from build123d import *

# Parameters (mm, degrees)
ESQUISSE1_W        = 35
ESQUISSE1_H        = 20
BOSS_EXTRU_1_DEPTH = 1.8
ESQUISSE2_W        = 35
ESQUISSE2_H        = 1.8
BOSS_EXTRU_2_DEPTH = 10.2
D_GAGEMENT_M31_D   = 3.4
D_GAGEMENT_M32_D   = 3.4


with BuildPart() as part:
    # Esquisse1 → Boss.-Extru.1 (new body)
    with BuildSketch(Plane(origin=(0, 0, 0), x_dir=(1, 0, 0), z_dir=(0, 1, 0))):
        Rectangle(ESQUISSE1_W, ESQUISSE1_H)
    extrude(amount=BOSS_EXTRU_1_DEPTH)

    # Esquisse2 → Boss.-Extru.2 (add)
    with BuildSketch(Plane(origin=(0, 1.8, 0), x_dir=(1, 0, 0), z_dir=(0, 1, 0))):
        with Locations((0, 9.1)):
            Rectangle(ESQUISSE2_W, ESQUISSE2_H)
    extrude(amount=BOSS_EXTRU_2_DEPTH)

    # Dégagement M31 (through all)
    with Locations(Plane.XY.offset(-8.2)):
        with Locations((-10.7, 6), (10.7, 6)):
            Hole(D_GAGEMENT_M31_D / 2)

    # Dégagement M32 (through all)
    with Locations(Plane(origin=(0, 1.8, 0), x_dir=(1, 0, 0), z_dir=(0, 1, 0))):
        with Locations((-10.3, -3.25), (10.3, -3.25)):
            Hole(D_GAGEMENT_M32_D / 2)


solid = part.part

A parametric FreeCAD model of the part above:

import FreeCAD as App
import Part
import Sketcher
from FreeCAD import Vector


def add_polygon(sketch, points):
    """Adds a closed chain of lines whose ends are joined by coincident constraints."""
    first, n = sketch.GeometryCount, len(points)
    for a, b in zip(points, points[1:] + points[:1]):
        sketch.addGeometry(Part.LineSegment(App.Vector(*a, 0), App.Vector(*b, 0)), False)
    for i in range(n):
        sketch.addConstraint(Sketcher.Constraint("Coincident", first + i, 2, first + (i + 1) % n, 1))

doc = App.newDocument("Part")
body = doc.addObject("PartDesign::Body", "Body")

sketch1 = doc.addObject("Sketcher::SketchObject", "Sketch")
body.addObject(sketch1)
sketch1.AttachmentSupport = (doc.XZ_Plane, [""])
sketch1.MapMode = "FlatFace"
add_polygon(sketch1, [(-18, -10), (-18, 10), (18, 10), (18, -10)])
sketch1.addConstraint([
    Sketcher.Constraint("Vertical", 0),
    Sketcher.Constraint("Horizontal", 1),
    Sketcher.Constraint("Vertical", 2),
    Sketcher.Constraint("Horizontal", 3),
    Sketcher.Constraint("Symmetric", 0, 2, 2, 2, -1, 1),
    Sketcher.Constraint("DistanceX", 1, 1, 1, 2, 35.0),
    Sketcher.Constraint("DistanceY", 0, 1, 0, 2, 20.0),
])
pad1 = doc.addObject("PartDesign::Pad", "Pad")
body.addObject(pad1)
pad1.Profile = sketch1
pad1.Length = 1.8
pad1.Reversed = True

sketch2 = doc.addObject("Sketcher::SketchObject", "Sketch001")
body.addObject(sketch2)
sketch2.AttachmentSupport = (doc.XZ_Plane, [""])
sketch2.MapMode = "FlatFace"
sketch2.AttachmentOffset = App.Placement(Vector(0, 0, -1.8), App.Rotation())
add_polygon(sketch2, [(-17.5, -10), (-17.5, -8.2), (17.5, -8.2), (17.5, -10)])
sketch2.addConstraint([
    Sketcher.Constraint("Vertical", 0),
    Sketcher.Constraint("Horizontal", 1),
    Sketcher.Constraint("Vertical", 2),
    Sketcher.Constraint("Horizontal", 3),
    Sketcher.Constraint("DistanceX", 1, 1, 1, 2, 35.0),
    Sketcher.Constraint("DistanceY", 0, 1, 0, 2, 1.8),
    Sketcher.Constraint("DistanceY", 2, 2, -1, 1, 10.0),
    Sketcher.Constraint("DistanceX", 0, 2, -1, 1, 17.5),
])
pad2 = doc.addObject("PartDesign::Pad", "Pad001")
body.addObject(pad2)
pad2.Profile = sketch2
pad2.Length = 10.2
pad2.Reversed = True

sketch3 = doc.addObject("Sketcher::SketchObject", "Sketch002")
body.addObject(sketch3)
sketch3.AttachmentSupport = (doc.XY_Plane, [""])
sketch3.MapMode = "FlatFace"
sketch3.AttachmentOffset = App.Placement(Vector(0, 0, -8.2), App.Rotation())
sketch3.addGeometry([
    Part.Circle(Vector(-10.7, 6, 0), Vector(0, 0, 1), 1.7),
    Part.Circle(Vector(10.7, 6, 0), Vector(0, 0, 1), 1.7),
], False)
sketch3.addConstraint([
    Sketcher.Constraint("Equal", 0, 1),
    Sketcher.Constraint("Symmetric", 0, 3, 1, 3, -2),
    Sketcher.Constraint("Diameter", 0, 3.4),
    Sketcher.Constraint("DistanceY", -1, 1, 0, 3, 6.0),
    Sketcher.Constraint("DistanceX", 0, 3, -1, 1, 10.7),
])
doc.recompute()
hole = doc.addObject("PartDesign::Hole", "Hole")
body.addObject(hole)
hole.Profile = sketch3
hole.ThreadType = "None"
hole.Diameter = 3.4
hole.DepthType = "ThroughAll"

sketch4 = doc.addObject("Sketcher::SketchObject", "Sketch003")
body.addObject(sketch4)
sketch4.AttachmentSupport = (doc.XZ_Plane, [""])
sketch4.MapMode = "FlatFace"
sketch4.AttachmentOffset = App.Placement(Vector(0, 0, -1.8), App.Rotation())
sketch4.addGeometry([
    Part.Circle(Vector(-10.3, 3.2, 0), Vector(0, 0, 1), 1.7),
    Part.Circle(Vector(10.3, 3.2, 0), Vector(0, 0, 1), 1.7),
], False)
sketch4.addConstraint([
    Sketcher.Constraint("Equal", 0, 1),
    Sketcher.Constraint("Symmetric", 0, 3, 1, 3, -2),
    Sketcher.Constraint("Diameter", 0, 3.4),
    Sketcher.Constraint("DistanceX", 0, 3, -1, 1, 10.3),
    Sketcher.Constraint("DistanceY", -1, 1, 0, 3, 3.25),
])
doc.recompute()
hole2 = doc.addObject("PartDesign::Hole", "Hole001")
body.addObject(hole2)
hole2.Profile = sketch4
hole2.ThreadType = "None"
hole2.Diameter = 3.4
hole2.DepthType = "ThroughAll"
hole2.Reversed = True

doc.recompute()
